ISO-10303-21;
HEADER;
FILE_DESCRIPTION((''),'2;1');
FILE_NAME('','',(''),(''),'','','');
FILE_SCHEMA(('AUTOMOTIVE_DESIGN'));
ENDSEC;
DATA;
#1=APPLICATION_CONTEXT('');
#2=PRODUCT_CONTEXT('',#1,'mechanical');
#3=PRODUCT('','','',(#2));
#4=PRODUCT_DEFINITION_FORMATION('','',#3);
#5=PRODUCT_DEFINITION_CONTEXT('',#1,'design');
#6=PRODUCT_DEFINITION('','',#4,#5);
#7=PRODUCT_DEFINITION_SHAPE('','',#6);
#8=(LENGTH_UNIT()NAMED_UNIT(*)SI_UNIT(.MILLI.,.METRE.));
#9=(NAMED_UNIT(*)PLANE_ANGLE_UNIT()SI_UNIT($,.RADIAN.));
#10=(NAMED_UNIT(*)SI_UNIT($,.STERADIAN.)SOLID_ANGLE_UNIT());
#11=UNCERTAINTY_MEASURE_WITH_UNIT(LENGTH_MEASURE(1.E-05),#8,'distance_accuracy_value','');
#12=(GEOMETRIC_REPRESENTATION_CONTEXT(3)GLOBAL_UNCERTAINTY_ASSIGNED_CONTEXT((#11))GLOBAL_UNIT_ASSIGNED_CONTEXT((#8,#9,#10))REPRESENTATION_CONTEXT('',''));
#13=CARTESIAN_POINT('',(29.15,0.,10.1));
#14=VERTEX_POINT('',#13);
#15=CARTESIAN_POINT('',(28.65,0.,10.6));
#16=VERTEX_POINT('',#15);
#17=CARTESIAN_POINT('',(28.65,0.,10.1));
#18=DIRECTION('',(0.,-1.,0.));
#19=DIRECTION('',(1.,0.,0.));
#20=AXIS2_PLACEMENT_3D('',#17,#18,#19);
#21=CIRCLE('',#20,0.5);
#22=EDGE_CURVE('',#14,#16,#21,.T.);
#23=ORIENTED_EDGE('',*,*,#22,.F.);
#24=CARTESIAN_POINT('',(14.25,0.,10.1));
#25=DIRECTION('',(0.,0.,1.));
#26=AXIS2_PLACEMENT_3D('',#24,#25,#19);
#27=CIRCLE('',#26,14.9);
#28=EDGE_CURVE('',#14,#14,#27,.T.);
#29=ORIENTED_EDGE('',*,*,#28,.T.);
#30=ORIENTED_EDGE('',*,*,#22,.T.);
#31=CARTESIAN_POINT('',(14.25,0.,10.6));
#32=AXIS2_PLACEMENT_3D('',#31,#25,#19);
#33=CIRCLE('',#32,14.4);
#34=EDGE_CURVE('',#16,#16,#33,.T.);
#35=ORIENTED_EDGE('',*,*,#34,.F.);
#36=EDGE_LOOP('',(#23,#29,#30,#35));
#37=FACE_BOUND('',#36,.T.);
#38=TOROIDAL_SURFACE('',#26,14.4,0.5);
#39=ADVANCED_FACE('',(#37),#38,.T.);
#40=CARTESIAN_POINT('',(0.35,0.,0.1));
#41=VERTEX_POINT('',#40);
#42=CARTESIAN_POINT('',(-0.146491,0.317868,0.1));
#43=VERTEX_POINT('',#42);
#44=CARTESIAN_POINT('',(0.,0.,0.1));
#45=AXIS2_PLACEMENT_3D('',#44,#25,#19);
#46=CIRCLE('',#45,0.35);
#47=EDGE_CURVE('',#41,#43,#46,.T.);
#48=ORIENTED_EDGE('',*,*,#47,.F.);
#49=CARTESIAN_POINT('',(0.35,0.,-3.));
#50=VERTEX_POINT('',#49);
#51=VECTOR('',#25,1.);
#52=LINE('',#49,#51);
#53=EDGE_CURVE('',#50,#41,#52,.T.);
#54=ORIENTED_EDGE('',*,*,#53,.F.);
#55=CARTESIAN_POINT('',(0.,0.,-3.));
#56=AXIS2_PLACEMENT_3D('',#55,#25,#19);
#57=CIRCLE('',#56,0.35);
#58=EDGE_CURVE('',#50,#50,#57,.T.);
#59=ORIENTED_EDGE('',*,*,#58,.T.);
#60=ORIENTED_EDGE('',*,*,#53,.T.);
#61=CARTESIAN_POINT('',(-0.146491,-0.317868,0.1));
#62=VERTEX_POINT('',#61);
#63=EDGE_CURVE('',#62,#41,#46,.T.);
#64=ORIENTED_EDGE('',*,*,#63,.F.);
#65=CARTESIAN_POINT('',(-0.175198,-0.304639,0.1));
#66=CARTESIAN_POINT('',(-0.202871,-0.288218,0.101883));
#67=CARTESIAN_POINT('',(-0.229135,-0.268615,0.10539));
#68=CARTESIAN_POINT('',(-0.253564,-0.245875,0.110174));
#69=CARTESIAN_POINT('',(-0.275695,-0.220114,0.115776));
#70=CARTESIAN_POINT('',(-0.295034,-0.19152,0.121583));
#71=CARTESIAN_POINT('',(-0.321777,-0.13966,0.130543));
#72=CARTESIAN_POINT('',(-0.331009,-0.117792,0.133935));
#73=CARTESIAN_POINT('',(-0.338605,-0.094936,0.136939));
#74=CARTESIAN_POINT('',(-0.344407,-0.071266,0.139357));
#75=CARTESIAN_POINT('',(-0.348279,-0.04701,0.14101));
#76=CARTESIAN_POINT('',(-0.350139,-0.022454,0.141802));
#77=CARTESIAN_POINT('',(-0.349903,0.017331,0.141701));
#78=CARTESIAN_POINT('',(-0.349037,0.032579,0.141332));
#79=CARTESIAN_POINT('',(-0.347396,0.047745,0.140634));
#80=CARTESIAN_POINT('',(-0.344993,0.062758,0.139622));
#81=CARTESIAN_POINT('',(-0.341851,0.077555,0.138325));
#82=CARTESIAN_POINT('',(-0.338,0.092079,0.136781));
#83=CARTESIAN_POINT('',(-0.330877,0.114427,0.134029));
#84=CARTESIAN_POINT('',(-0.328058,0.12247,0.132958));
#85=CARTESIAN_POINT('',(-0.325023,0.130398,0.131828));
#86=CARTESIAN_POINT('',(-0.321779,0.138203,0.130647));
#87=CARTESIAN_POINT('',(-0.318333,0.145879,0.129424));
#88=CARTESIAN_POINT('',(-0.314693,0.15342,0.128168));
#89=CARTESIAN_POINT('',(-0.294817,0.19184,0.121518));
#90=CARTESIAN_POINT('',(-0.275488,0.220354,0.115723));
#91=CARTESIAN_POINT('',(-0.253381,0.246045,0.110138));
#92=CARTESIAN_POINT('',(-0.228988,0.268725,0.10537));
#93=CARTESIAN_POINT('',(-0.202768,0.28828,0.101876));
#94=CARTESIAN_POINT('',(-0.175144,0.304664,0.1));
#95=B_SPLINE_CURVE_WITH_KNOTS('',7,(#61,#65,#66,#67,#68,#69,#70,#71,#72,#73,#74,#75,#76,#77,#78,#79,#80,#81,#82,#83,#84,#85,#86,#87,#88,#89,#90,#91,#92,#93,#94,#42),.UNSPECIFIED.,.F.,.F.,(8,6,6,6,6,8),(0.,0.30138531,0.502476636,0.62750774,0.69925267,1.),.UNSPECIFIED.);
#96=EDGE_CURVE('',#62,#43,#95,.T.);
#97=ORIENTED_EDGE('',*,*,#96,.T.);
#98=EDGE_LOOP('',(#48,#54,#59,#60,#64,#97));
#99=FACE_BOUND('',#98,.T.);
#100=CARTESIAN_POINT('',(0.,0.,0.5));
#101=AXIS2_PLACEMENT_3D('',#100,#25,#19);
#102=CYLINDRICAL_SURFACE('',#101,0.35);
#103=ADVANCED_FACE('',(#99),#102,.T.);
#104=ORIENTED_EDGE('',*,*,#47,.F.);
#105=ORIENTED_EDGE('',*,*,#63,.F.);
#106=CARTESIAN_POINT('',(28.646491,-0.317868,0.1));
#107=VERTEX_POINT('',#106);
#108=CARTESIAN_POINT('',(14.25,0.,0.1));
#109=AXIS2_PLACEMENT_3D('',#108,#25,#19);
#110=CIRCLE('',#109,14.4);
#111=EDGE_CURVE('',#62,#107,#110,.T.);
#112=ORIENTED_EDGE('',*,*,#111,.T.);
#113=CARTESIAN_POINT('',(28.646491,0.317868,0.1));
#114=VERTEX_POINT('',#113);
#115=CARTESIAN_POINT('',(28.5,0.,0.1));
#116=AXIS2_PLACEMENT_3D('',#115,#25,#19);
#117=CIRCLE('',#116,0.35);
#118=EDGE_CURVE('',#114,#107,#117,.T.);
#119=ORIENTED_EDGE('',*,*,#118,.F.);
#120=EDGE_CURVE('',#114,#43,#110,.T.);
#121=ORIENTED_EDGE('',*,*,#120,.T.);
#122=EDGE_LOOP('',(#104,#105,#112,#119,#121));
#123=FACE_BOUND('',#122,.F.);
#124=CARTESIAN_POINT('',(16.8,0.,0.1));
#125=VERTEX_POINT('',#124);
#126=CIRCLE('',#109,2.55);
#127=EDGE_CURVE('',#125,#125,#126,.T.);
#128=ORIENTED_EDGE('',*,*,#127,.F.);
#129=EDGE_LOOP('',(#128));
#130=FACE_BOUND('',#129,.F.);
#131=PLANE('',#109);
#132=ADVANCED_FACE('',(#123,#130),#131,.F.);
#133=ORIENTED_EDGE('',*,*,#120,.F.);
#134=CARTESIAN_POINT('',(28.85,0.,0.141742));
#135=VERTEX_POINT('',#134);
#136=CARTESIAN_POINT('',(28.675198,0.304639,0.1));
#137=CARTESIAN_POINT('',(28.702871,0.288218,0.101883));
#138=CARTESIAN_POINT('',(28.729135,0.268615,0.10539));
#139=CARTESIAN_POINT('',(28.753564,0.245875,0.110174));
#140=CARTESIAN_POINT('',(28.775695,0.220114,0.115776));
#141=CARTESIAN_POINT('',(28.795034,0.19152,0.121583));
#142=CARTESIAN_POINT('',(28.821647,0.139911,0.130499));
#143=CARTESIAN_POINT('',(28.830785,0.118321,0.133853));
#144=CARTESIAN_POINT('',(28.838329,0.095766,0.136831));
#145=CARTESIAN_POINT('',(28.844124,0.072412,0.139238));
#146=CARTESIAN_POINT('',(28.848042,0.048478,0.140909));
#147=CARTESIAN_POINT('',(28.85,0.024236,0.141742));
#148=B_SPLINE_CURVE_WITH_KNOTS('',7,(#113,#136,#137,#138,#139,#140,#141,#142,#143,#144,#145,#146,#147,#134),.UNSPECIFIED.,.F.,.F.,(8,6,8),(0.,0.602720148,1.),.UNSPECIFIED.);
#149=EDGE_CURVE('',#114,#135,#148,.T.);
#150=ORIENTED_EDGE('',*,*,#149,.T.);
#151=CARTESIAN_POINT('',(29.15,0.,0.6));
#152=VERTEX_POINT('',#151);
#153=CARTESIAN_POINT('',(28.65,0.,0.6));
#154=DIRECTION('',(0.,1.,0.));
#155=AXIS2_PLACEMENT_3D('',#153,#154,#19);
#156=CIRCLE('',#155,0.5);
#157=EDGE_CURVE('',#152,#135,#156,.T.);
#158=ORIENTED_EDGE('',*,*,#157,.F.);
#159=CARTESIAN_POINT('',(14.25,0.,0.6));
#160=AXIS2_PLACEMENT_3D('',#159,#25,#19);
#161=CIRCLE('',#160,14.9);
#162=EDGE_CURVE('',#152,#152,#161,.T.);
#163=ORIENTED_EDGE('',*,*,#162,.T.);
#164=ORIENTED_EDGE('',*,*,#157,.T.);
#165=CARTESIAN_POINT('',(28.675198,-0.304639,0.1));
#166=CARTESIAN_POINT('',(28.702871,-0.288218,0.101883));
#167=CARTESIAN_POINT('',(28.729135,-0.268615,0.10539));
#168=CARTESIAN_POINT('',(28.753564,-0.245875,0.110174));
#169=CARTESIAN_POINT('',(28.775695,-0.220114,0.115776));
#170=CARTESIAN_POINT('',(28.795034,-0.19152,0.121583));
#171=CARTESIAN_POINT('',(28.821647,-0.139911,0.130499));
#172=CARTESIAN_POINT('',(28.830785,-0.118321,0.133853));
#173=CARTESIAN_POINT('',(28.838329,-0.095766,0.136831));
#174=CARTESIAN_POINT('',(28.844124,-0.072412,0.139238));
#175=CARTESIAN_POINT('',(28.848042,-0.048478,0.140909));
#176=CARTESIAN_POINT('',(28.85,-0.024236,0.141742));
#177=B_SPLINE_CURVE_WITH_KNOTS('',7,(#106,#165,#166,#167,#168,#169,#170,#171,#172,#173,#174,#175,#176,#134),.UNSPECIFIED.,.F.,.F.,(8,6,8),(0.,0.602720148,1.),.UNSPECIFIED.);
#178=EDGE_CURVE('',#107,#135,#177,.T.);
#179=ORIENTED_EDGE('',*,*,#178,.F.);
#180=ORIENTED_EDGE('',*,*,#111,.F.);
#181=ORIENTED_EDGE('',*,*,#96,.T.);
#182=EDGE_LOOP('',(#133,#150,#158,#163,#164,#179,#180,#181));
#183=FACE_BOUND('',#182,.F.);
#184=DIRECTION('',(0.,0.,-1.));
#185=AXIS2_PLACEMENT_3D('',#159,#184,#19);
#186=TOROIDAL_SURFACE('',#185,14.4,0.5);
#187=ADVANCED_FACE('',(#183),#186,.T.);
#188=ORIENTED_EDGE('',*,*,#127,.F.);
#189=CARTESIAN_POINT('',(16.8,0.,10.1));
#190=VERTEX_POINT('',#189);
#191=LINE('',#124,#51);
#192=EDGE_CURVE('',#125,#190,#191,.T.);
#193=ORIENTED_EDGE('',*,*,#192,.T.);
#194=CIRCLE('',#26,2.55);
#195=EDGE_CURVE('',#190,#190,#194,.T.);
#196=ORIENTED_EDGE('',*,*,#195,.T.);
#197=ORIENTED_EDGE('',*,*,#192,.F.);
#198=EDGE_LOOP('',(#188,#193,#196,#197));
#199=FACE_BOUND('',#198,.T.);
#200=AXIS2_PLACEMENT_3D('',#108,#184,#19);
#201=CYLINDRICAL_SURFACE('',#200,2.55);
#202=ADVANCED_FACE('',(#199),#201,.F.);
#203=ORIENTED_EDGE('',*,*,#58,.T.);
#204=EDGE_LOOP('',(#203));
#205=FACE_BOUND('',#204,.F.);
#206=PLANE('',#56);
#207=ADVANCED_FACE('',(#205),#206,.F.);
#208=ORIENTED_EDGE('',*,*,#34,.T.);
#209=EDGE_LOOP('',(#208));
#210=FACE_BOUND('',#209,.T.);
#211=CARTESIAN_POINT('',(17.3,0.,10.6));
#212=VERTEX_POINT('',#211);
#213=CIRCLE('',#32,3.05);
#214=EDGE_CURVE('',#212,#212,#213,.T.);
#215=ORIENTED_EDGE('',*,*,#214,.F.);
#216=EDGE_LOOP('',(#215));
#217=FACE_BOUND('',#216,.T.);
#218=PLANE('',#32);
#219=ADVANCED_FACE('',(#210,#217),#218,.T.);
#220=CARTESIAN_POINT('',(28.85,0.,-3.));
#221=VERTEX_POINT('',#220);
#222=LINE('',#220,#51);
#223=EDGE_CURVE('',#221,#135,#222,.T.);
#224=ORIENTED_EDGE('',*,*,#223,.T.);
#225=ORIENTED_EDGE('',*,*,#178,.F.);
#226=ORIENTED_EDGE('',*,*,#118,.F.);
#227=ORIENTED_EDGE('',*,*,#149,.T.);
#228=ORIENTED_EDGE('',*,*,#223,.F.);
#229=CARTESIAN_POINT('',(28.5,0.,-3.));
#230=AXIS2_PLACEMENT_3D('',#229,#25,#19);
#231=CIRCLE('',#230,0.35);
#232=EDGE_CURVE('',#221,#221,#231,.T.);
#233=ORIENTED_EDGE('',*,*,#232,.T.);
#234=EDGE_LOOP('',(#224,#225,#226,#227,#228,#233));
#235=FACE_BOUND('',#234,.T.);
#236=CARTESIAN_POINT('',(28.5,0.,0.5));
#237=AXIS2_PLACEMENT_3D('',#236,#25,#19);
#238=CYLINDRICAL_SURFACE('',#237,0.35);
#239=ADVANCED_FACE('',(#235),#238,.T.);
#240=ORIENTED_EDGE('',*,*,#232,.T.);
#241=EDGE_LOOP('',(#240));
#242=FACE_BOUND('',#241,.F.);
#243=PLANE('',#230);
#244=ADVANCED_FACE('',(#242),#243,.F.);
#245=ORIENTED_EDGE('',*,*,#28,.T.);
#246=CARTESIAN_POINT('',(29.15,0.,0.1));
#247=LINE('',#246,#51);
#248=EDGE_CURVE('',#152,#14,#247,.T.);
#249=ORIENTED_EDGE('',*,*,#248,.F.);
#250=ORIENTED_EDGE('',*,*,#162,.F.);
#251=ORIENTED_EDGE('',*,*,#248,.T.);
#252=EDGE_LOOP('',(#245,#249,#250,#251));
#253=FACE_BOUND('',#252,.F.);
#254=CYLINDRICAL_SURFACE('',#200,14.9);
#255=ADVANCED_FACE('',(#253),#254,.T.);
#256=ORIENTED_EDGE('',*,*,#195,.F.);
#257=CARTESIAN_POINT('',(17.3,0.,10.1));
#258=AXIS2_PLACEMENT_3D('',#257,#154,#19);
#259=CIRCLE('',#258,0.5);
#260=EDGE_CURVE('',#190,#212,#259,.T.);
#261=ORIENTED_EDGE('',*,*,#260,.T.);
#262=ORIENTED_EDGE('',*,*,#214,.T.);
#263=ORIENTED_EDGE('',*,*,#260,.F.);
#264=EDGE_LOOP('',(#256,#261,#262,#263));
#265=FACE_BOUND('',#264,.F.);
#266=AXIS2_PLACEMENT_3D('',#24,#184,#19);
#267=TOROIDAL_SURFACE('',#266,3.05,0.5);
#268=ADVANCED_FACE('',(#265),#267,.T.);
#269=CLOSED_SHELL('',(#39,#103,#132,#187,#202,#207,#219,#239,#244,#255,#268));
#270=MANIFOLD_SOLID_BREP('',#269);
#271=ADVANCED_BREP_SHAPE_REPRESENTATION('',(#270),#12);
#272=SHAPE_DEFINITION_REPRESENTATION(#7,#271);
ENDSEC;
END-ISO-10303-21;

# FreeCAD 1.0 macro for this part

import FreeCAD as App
import Part
import Sketcher

V = App.Vector


def edges_at(feature, points):
    """Names of the edges that pass closest to the given points."""
    edges = feature.Shape.Edges
    near = lambda p: min(range(len(edges)), key=lambda i: edges[i].distToShape(Part.Vertex(*p))[0])
    return sorted({f"Edge{near(p) + 1}" for p in points})

doc = App.newDocument("Part")
body = doc.addObject("PartDesign::Body", "Body")

# Sketch on XY plane
sketch1 = body.newObject("Sketcher::SketchObject", "Sketch")
sketch1.AttachmentSupport = (doc.getObject("XY_Plane"), [""])
sketch1.MapMode = "FlatFace"
sketch1.AttachmentOffset = App.Placement(V(0, 0, 0.1), App.Rotation())
sketch1.addGeometry([
    Part.Circle(V(14.25, 0, 0), V(0, 0, 1), 14.9),
    Part.Circle(V(14.25, 0, 0), V(0, 0, 1), 2.55),
], False)
sketch1.addConstraint([
    Sketcher.Constraint("Coincident", 1, 3, 0, 3),
    Sketcher.Constraint("PointOnObject", 0, 3, -1),
    Sketcher.Constraint("Diameter", 0, 29.8),
    Sketcher.Constraint("Diameter", 1, 5.1),
    Sketcher.Constraint("DistanceX", -1, 1, 0, 3, 14.25),
])
pad1 = body.newObject("PartDesign::Pad", "Pad")
pad1.Profile = sketch1
pad1.Length = 10.5
doc.recompute()

fillet = body.newObject("PartDesign::Fillet", "Fillet")
fillet.Base = (pad1, edges_at(pad1, [(11.7, 0, 10.6), (-0.65, 0, 10.6), (-0.65, 0, 0.1)]))
fillet.Radius = 0.5
body2 = doc.addObject("PartDesign::Body", "Body001")
body2.AllowCompound = True

# Sketch on XY plane
sketch2 = body2.newObject("Sketcher::SketchObject", "Sketch001")
sketch2.AttachmentSupport = (doc.getObject("XY_Plane001"), [""])
sketch2.MapMode = "FlatFace"
sketch2.AttachmentOffset = App.Placement(V(0, 0, 0.5), App.Rotation())
sketch2.addGeometry([
    Part.Circle(V(0, 0, 0), V(0, 0, 1), 0.35),
    Part.Circle(V(28.5, 0, 0), V(0, 0, 1), 0.35),
], False)
sketch2.addConstraint([
    Sketcher.Constraint("Coincident", 0, 3, -1, 1),
    Sketcher.Constraint("Equal", 0, 1),
    Sketcher.Constraint("PointOnObject", 1, 3, -1),
    Sketcher.Constraint("Diameter", 0, 0.7),
    Sketcher.Constraint("DistanceX", -1, 1, 1, 3, 28.5),
])
pad2 = body2.newObject("PartDesign::Pad", "Pad001")
pad2.Profile = sketch2
pad2.Type = "TwoLengths"
pad2.Length = 5.25
pad2.Length2 = 3.5
doc.recompute()

boolean = body2.newObject("PartDesign::Boolean", "Boolean")
boolean.Type = "Fuse"
boolean.addObjects([body])

doc.recompute()
